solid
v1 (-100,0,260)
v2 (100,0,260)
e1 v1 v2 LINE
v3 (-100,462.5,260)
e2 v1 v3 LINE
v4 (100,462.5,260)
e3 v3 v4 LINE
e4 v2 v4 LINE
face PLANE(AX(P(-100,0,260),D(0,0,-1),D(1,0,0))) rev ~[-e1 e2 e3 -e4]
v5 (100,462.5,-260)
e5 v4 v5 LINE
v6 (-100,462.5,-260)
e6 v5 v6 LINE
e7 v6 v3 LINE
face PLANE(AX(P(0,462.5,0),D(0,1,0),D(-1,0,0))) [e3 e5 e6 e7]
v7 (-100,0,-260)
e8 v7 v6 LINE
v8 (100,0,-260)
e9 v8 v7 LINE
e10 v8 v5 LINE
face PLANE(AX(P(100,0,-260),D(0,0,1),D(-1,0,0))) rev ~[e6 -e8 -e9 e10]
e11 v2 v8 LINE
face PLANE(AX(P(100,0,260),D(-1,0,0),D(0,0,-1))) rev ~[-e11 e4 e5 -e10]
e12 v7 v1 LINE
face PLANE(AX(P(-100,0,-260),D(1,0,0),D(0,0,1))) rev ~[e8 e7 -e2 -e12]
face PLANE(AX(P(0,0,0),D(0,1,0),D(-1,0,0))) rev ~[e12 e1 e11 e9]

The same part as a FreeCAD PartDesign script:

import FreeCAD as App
import Part
import Sketcher

V = App.Vector
Q = App.Units.Quantity

doc = App.newDocument("Part")
body = doc.addObject("PartDesign::Body", "Body")

# Sketch on XZ plane
sketch1 = body.newObject("Sketcher::SketchObject", "Sketch")
sketch1.AttachmentSupport = (doc.getObject("XZ_Plane"), [""])
sketch1.MapMode = "FlatFace"
sketch1.addGeometry([
    Part.LineSegment(V(100, 260, 0), V(100, -260, 0)),
    Part.LineSegment(V(100, -260, 0), V(-100, -260, 0)),
    Part.LineSegment(V(-100, -260, 0), V(-100, 260, 0)),
    Part.LineSegment(V(-100, 260, 0), V(100, 260, 0)),
], False)
sketch1.addConstraint([
    Sketcher.Constraint("Coincident", 0, 2, 1, 1),
    Sketcher.Constraint("Coincident", 1, 2, 2, 1),
    Sketcher.Constraint("Coincident", 2, 2, 3, 1),
    Sketcher.Constraint("Coincident", 3, 2, 0, 1),
    Sketcher.Constraint("Vertical", 0),
    Sketcher.Constraint("Horizontal", 1),
    Sketcher.Constraint("Vertical", 2),
    Sketcher.Constraint("Horizontal", 3),
    Sketcher.Constraint("Symmetric", 0, 2, 2, 2, -1, 1),
    Sketcher.Constraint("DistanceX", 1, 2, 1, 1, Q("200 mm")),
    Sketcher.Constraint("DistanceY", 0, 2, 0, 1, Q("520 mm")),
])
pad1 = body.newObject("PartDesign::Pad", "Pad")
pad1.Profile = sketch1
pad1.Length = 462.5
pad1.Reversed = True

doc.recompute()
